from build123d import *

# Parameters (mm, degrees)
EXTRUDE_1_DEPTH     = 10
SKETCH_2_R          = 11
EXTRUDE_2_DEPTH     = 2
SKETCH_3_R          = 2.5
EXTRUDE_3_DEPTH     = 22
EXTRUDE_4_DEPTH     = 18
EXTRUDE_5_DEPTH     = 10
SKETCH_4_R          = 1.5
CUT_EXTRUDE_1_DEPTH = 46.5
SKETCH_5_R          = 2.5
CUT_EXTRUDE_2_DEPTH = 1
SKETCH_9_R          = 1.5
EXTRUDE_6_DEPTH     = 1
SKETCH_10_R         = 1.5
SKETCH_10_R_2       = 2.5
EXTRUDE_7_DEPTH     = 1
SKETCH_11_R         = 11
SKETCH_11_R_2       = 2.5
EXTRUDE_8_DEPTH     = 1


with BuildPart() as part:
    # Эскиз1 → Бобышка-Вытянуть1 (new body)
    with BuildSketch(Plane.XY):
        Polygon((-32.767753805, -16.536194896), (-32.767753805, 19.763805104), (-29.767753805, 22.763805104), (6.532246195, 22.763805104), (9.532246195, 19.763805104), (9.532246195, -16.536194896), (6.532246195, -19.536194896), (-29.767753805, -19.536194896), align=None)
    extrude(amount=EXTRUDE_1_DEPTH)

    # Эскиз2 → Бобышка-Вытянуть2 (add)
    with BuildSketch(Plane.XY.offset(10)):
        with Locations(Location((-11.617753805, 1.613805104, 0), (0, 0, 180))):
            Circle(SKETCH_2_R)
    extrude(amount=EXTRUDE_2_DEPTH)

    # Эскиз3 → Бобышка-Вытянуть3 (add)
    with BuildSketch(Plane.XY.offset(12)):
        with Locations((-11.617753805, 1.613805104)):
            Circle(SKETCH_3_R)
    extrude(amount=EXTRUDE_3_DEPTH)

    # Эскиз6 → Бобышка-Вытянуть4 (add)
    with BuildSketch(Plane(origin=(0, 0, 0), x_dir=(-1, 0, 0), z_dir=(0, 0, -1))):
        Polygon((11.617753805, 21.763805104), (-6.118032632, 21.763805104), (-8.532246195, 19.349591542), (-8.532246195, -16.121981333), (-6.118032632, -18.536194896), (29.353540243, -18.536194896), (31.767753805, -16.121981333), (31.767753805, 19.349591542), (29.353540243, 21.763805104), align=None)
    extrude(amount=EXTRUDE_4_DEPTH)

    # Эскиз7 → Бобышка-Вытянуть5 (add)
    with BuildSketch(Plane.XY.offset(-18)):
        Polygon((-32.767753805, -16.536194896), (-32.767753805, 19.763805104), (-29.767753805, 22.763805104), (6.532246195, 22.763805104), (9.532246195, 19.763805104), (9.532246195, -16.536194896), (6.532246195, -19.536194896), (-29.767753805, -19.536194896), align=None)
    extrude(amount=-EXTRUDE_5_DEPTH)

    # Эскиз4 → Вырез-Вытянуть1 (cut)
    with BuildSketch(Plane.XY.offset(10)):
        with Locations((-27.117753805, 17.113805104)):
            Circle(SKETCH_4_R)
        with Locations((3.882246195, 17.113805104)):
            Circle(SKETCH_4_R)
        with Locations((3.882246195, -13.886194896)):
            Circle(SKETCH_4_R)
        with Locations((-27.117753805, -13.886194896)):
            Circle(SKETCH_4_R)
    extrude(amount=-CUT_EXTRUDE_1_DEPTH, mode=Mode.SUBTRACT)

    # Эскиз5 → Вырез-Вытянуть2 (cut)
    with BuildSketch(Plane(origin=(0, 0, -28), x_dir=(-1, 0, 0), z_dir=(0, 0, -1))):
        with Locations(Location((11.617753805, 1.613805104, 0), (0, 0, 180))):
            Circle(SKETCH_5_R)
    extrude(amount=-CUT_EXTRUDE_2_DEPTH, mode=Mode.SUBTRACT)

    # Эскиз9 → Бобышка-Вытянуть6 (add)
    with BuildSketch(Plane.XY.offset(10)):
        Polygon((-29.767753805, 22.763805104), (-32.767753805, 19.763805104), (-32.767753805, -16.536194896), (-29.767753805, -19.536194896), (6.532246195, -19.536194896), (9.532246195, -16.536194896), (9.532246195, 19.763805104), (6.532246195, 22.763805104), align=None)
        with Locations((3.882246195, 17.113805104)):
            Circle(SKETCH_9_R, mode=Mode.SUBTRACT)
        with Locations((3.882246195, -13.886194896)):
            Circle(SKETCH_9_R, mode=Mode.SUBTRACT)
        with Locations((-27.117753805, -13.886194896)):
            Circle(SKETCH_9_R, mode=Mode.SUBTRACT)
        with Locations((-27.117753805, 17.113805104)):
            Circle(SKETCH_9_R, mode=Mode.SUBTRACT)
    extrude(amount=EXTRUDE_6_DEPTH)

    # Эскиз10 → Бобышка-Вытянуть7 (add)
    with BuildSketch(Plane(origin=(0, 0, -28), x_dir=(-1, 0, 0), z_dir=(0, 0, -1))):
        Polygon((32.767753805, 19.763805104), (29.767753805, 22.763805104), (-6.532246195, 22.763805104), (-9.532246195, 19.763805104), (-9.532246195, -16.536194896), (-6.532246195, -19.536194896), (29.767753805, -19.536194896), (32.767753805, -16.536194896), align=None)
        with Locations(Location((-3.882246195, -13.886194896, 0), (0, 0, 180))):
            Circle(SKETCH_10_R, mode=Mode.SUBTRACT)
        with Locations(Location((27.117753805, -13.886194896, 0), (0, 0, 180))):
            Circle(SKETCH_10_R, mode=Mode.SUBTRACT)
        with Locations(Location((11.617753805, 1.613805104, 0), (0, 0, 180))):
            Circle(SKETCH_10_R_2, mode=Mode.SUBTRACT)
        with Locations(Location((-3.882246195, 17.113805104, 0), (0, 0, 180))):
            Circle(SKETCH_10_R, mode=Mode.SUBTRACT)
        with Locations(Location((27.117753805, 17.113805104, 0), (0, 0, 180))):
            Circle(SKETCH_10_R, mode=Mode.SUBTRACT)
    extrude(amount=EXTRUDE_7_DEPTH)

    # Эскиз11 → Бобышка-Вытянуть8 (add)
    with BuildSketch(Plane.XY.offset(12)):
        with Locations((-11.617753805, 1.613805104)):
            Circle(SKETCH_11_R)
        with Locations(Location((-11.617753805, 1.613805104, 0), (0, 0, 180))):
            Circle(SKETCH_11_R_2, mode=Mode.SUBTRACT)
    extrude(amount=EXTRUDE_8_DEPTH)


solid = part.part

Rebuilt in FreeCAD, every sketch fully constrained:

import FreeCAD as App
import Part
import Sketcher

V = App.Vector
Q = App.Units.Quantity

doc = App.newDocument("Part")
body = doc.addObject("PartDesign::Body", "Body")

# Sketch on XY plane
sketch1 = doc.addObject("Sketcher::SketchObject", "Sketch")
body.addObject(sketch1)
sketch1.AttachmentSupport = (doc.XY_Plane, [""])
sketch1.MapMode = "FlatFace"
sketch1.addGeometry([
    Part.LineSegment(V(-32.8, 19.8, 0), V(-32.8, -16.5, 0)),  # 0
    Part.LineSegment(V(-32.8, -16.5, 0), V(-29.8, -19.5, 0)),  # 1
    Part.LineSegment(V(-29.8, -19.5, 0), V(6.5, -19.5, 0)),  # 2
    Part.LineSegment(V(6.5, -19.5, 0), V(9.5, -16.5, 0)),  # 3
    Part.LineSegment(V(9.5, -16.5, 0), V(9.5, 19.8, 0)),  # 4
    Part.LineSegment(V(9.5, 19.8, 0), V(6.5, 22.8, 0)),  # 5
    Part.LineSegment(V(6.5, 22.8, 0), V(-29.8, 22.8, 0)),  # 6
    Part.LineSegment(V(-29.8, 22.8, 0), V(-32.8, 19.8, 0)),  # 7
], False)
sketch1.addConstraint([
    Sketcher.Constraint("Coincident", 0, 2, 1, 1),
    Sketcher.Constraint("Coincident", 1, 2, 2, 1),
    Sketcher.Constraint("Coincident", 2, 2, 3, 1),
    Sketcher.Constraint("Coincident", 3, 2, 4, 1),
    Sketcher.Constraint("Coincident", 4, 2, 5, 1),
    Sketcher.Constraint("Coincident", 5, 2, 6, 1),
    Sketcher.Constraint("Coincident", 6, 2, 7, 1),
    Sketcher.Constraint("Coincident", 7, 2, 0, 1),
    Sketcher.Constraint("Vertical", 0),
    Sketcher.Constraint("Horizontal", 2),
    Sketcher.Constraint("Vertical", 4),
    Sketcher.Constraint("Horizontal", 6),
    Sketcher.Constraint("Perpendicular", 1, 3),
    Sketcher.Constraint("Perpendicular", 3, 5),
    Sketcher.Constraint("Perpendicular", 5, 7),
    Sketcher.Constraint("Horizontal", 0, 2, 3, 2),
    Sketcher.Constraint("Horizontal", 4, 2, 7, 2),
    Sketcher.Constraint("Vertical", 2, 2, 5, 2),
    Sketcher.Constraint("Vertical", 1, 2, 6, 2),
    Sketcher.Constraint("Equal", 6, 0),
    Sketcher.Constraint("DistanceX", 2, 1, 2, 2, Q("36.3 mm")),
    Sketcher.Constraint("DistanceX", 0, 2, 1, 2, Q("3 mm")),
    Sketcher.Constraint("DistanceX", 0, 2, -1, 1, Q("32.767754 mm")),
    Sketcher.Constraint("DistanceY", 0, 2, -1, 1, Q("16.536195 mm")),
])
pad1 = doc.addObject("PartDesign::Pad", "Pad")
body.addObject(pad1)
pad1.Profile = sketch1
pad1.Length = 10

# Sketch on XY plane
sketch2 = doc.addObject("Sketcher::SketchObject", "Sketch001")
body.addObject(sketch2)
sketch2.AttachmentSupport = (doc.XY_Plane, [""])
sketch2.MapMode = "FlatFace"
sketch2.AttachmentOffset = App.Placement(V(0, 0, 10), App.Rotation())
sketch2.addGeometry(Part.Circle(V(-12, 2, 0), V(0, 0, 1), 11), False)
sketch2.addConstraint([
    Sketcher.Constraint("Diameter", 0, Q("22 mm")),
    Sketcher.Constraint("DistanceX", 0, 3, -1, 1, Q("11.617754 mm")),
    Sketcher.Constraint("DistanceY", -1, 1, 0, 3, Q("1.613805 mm")),
])
pad2 = doc.addObject("PartDesign::Pad", "Pad001")
body.addObject(pad2)
pad2.Profile = sketch2
pad2.Length = 2

# Sketch on XY plane
sketch3 = doc.addObject("Sketcher::SketchObject", "Sketch002")
body.addObject(sketch3)
sketch3.AttachmentSupport = (doc.XY_Plane, [""])
sketch3.MapMode = "FlatFace"
sketch3.AttachmentOffset = App.Placement(V(0, 0, 12), App.Rotation())
sketch3.addGeometry(Part.Circle(V(-11.6, 1.6, 0), V(0, 0, 1), 2.5), False)
sketch3.addConstraint([
    Sketcher.Constraint("Diameter", 0, Q("5 mm")),
    Sketcher.Constraint("DistanceX", 0, 3, -1, 1, Q("11.617754 mm")),
    Sketcher.Constraint("DistanceY", -1, 1, 0, 3, Q("1.613805 mm")),
])
pad3 = doc.addObject("PartDesign::Pad", "Pad002")
body.addObject(pad3)
pad3.Profile = sketch3
pad3.Length = 22

# Sketch on XY plane
sketch4 = doc.addObject("Sketcher::SketchObject", "Sketch003")
body.addObject(sketch4)
sketch4.AttachmentSupport = (doc.XY_Plane, [""])
sketch4.MapMode = "FlatFace"
sketch4.addGeometry([
    Part.LineSegment(V(6.1, 21.8, 0), V(8.5, 19.3, 0)),  # 0
    Part.LineSegment(V(8.5, 19.3, 0), V(8.5, -16.1, 0)),  # 1
    Part.LineSegment(V(8.5, -16.1, 0), V(6.1, -18.5, 0)),  # 2
    Part.LineSegment(V(6.1, -18.5, 0), V(-29.4, -18.5, 0)),  # 3
    Part.LineSegment(V(-29.4, -18.5, 0), V(-31.8, -16.1, 0)),  # 4
    Part.LineSegment(V(-31.8, -16.1, 0), V(-31.8, 19.3, 0)),  # 5
    Part.LineSegment(V(-31.8, 19.3, 0), V(-29.4, 21.8, 0)),  # 6
    Part.LineSegment(V(-29.4, 21.8, 0), V(6.1, 21.8, 0)),  # 7
], False)
sketch4.addConstraint([
    Sketcher.Constraint("Coincident", 0, 2, 1, 1),
    Sketcher.Constraint("Coincident", 1, 2, 2, 1),
    Sketcher.Constraint("Coincident", 2, 2, 3, 1),
    Sketcher.Constraint("Coincident", 3, 2, 4, 1),
    Sketcher.Constraint("Coincident", 4, 2, 5, 1),
    Sketcher.Constraint("Coincident", 5, 2, 6, 1),
    Sketcher.Constraint("Coincident", 6, 2, 7, 1),
    Sketcher.Constraint("Coincident", 7, 2, 0, 1),
    Sketcher.Constraint("Vertical", 1),
    Sketcher.Constraint("Horizontal", 3),
    Sketcher.Constraint("Vertical", 5),
    Sketcher.Constraint("Horizontal", 7),
    Sketcher.Constraint("Perpendicular", 0, 2),
    Sketcher.Constraint("Perpendicular", 2, 4),
    Sketcher.Constraint("Perpendicular", 4, 6),
    Sketcher.Constraint("Horizontal", 1, 2, 4, 2),
    Sketcher.Constraint("Horizontal", 0, 2, 5, 2),
    Sketcher.Constraint("Vertical", 3, 2, 6, 2),
    Sketcher.Constraint("Vertical", 2, 2, 7, 2),
    Sketcher.Constraint("Equal", 7, 1),
    Sketcher.Constraint("DistanceX", 4, 2, 1, 2, Q("40.3 mm")),
    Sketcher.Constraint("DistanceX", 3, 2, 3, 1, Q("35.471573 mm")),
    Sketcher.Constraint("DistanceY", -1, 1, 0, 2, Q("19.349592 mm")),
    Sketcher.Constraint("DistanceX", 3, 2, -1, 1, Q("29.35354 mm")),
])
pad4 = doc.addObject("PartDesign::Pad", "Pad003")
body.addObject(pad4)
pad4.Profile = sketch4
pad4.Length = 18
pad4.Reversed = True

# Sketch on XY plane
sketch5 = doc.addObject("Sketcher::SketchObject", "Sketch004")
body.addObject(sketch5)
sketch5.AttachmentSupport = (doc.XY_Plane, [""])
sketch5.MapMode = "FlatFace"
sketch5.AttachmentOffset = App.Placement(V(0, 0, -18), App.Rotation())
sketch5.addGeometry([
    Part.LineSegment(V(-32.8, 19.8, 0), V(-32.8, -16.5, 0)),  # 0
    Part.LineSegment(V(-32.8, -16.5, 0), V(-29.8, -19.5, 0)),  # 1
    Part.LineSegment(V(-29.8, -19.5, 0), V(6.5, -19.5, 0)),  # 2
    Part.LineSegment(V(6.5, -19.5, 0), V(9.5, -16.5, 0)),  # 3
    Part.LineSegment(V(9.5, -16.5, 0), V(9.5, 19.8, 0)),  # 4
    Part.LineSegment(V(9.5, 19.8, 0), V(6.5, 22.8, 0)),  # 5
    Part.LineSegment(V(6.5, 22.8, 0), V(-29.8, 22.8, 0)),  # 6
    Part.LineSegment(V(-29.8, 22.8, 0), V(-32.8, 19.8, 0)),  # 7
], False)
sketch5.addConstraint([
    Sketcher.Constraint("Coincident", 0, 2, 1, 1),
    Sketcher.Constraint("Coincident", 1, 2, 2, 1),
    Sketcher.Constraint("Coincident", 2, 2, 3, 1),
    Sketcher.Constraint("Coincident", 3, 2, 4, 1),
    Sketcher.Constraint("Coincident", 4, 2, 5, 1),
    Sketcher.Constraint("Coincident", 5, 2, 6, 1),
    Sketcher.Constraint("Coincident", 6, 2, 7, 1),
    Sketcher.Constraint("Coincident", 7, 2, 0, 1),
    Sketcher.Constraint("Vertical", 0),
    Sketcher.Constraint("Horizontal", 2),
    Sketcher.Constraint("Vertical", 4),
    Sketcher.Constraint("Horizontal", 6),
    Sketcher.Constraint("Perpendicular", 1, 3),
    Sketcher.Constraint("Perpendicular", 3, 5),
    Sketcher.Constraint("Perpendicular", 5, 7),
    Sketcher.Constraint("Horizontal", 0, 2, 3, 2),
    Sketcher.Constraint("Horizontal", 4, 2, 7, 2),
    Sketcher.Constraint("Vertical", 2, 2, 5, 2),
    Sketcher.Constraint("Vertical", 1, 2, 6, 2),
    Sketcher.Constraint("Equal", 6, 0),
    Sketcher.Constraint("DistanceX", 2, 1, 2, 2, Q("36.3 mm")),
    Sketcher.Constraint("DistanceX", 0, 2, 1, 2, Q("3 mm")),
    Sketcher.Constraint("DistanceX", 0, 2, -1, 1, Q("32.767754 mm")),
    Sketcher.Constraint("DistanceY", 0, 2, -1, 1, Q("16.536195 mm")),
])
pad5 = doc.addObject("PartDesign::Pad", "Pad004")
body.addObject(pad5)
pad5.Profile = sketch5
pad5.Length = 10
pad5.Reversed = True

# Sketch on XY plane
sketch6 = doc.addObject("Sketcher::SketchObject", "Sketch005")
body.addObject(sketch6)
sketch6.AttachmentSupport = (doc.XY_Plane, [""])
sketch6.MapMode = "FlatFace"
sketch6.AttachmentOffset = App.Placement(V(0, 0, 10), App.Rotation())
sketch6.addGeometry([
    Part.Circle(V(-27.1, 17.1, 0), V(0, 0, 1), 1.5),
    Part.Circle(V(3.9, 17.1, 0), V(0, 0, 1), 1.5),
    Part.Circle(V(3.9, -13.9, 0), V(0, 0, 1), 1.5),
    Part.Circle(V(-27.1, -13.9, 0), V(0, 0, 1), 1.5),
], False)
sketch6.addConstraint([
    Sketcher.Constraint("Equal", 0, 1),
    Sketcher.Constraint("Equal", 1, 2),
    Sketcher.Constraint("Equal", 2, 3),
    Sketcher.Constraint("Horizontal", 0, 3, 1, 3),
    Sketcher.Constraint("Horizontal", 2, 3, 3, 3),
    Sketcher.Constraint("Vertical", 1, 3, 2, 3),
    Sketcher.Constraint("Vertical", 0, 3, 3, 3),
    Sketcher.Constraint("Diameter", 0, Q("3 mm")),
    Sketcher.Constraint("DistanceX", 0, 3, 1, 3, Q("31 mm")),
    Sketcher.Constraint("DistanceY", 2, 3, 1, 3, Q("31 mm")),
    Sketcher.Constraint("DistanceX", 0, 3, -1, 1, Q("27.117754 mm")),
    Sketcher.Constraint("DistanceY", -1, 1, 0, 3, Q("17.113805 mm")),
])
pocket1 = doc.addObject("PartDesign::Pocket", "Pocket")
body.addObject(pocket1)
pocket1.Profile = sketch6
pocket1.Length = 46.5

# Sketch on XY plane
sketch7 = doc.addObject("Sketcher::SketchObject", "Sketch006")
body.addObject(sketch7)
sketch7.AttachmentSupport = (doc.XY_Plane, [""])
sketch7.MapMode = "FlatFace"
sketch7.AttachmentOffset = App.Placement(V(0, 0, -28), App.Rotation())
sketch7.addGeometry(Part.Circle(V(-11.6, 1.6, 0), V(0, 0, 1), 2.5), False)
sketch7.addConstraint([
    Sketcher.Constraint("Diameter", 0, Q("5 mm")),
    Sketcher.Constraint("DistanceX", 0, 3, -1, 1, Q("11.617754 mm")),
    Sketcher.Constraint("DistanceY", -1, 1, 0, 3, Q("1.613805 mm")),
])
pocket2 = doc.addObject("PartDesign::Pocket", "Pocket001")
body.addObject(pocket2)
pocket2.Profile = sketch7
pocket2.Length = 1
pocket2.Reversed = True

# Sketch on XY plane
sketch8 = doc.addObject("Sketcher::SketchObject", "Sketch007")
body.addObject(sketch8)
sketch8.AttachmentSupport = (doc.XY_Plane, [""])
sketch8.MapMode = "FlatFace"
sketch8.AttachmentOffset = App.Placement(V(0, 0, 10), App.Rotation())
sketch8.addGeometry([
    Part.LineSegment(V(-29.8, 22.8, 0), V(-32.8, 19.8, 0)),  # 0
    Part.LineSegment(V(-32.8, 19.8, 0), V(-32.8, -16.5, 0)),  # 1
    Part.LineSegment(V(-32.8, -16.5, 0), V(-29.8, -19.5, 0)),  # 2
    Part.LineSegment(V(-29.8, -19.5, 0), V(6.5, -19.5, 0)),  # 3
    Part.LineSegment(V(6.5, -19.5, 0), V(9.5, -16.5, 0)),  # 4
    Part.LineSegment(V(9.5, -16.5, 0), V(9.5, 19.8, 0)),  # 5
    Part.LineSegment(V(9.5, 19.8, 0), V(6.5, 22.8, 0)),  # 6
    Part.LineSegment(V(6.5, 22.8, 0), V(-29.8, 22.8, 0)),  # 7
    Part.Circle(V(-27.1, -13.9, 0), V(0, 0, 1), 1.5),  # 8
    Part.Circle(V(3.9, -13.9, 0), V(0, 0, 1), 1.5),  # 9
    Part.Circle(V(-27.1, 17.1, 0), V(0, 0, 1), 1.5),  # 10
    Part.Circle(V(3.9, 17.1, 0), V(0, 0, 1), 1.5),  # 11
], False)
sketch8.addConstraint([
    Sketcher.Constraint("Coincident", 0, 2, 1, 1),
    Sketcher.Constraint("Coincident", 1, 2, 2, 1),
    Sketcher.Constraint("Coincident", 2, 2, 3, 1),
    Sketcher.Constraint("Coincident", 3, 2, 4, 1),
    Sketcher.Constraint("Coincident", 4, 2, 5, 1),
    Sketcher.Constraint("Coincident", 5, 2, 6, 1),
    Sketcher.Constraint("Coincident", 6, 2, 7, 1),
    Sketcher.Constraint("Coincident", 7, 2, 0, 1),
    Sketcher.Constraint("Vertical", 1),
    Sketcher.Constraint("Horizontal", 3),
    Sketcher.Constraint("Vertical", 5),
    Sketcher.Constraint("Horizontal", 7),
    Sketcher.Constraint("Equal", 8, 9),
    Sketcher.Constraint("Equal", 9, 10),
    Sketcher.Constraint("Equal", 10, 11),
    Sketcher.Constraint("Perpendicular", 0, 2),
    Sketcher.Constraint("Perpendicular", 2, 4),
    Sketcher.Constraint("Perpendicular", 4, 6),
    Sketcher.Constraint("Horizontal", 8, 3, 9, 3),
    Sketcher.Constraint("Horizontal", 10, 3, 11, 3),
    Sketcher.Constraint("Horizontal", 1, 2, 4, 2),
    Sketcher.Constraint("Horizontal", 0, 2, 5, 2),
    Sketcher.Constraint("Vertical", 8, 3, 10, 3),
    Sketcher.Constraint("Vertical", 9, 3, 11, 3),
    Sketcher.Constraint("Vertical", 3, 2, 6, 2),
    Sketcher.Constraint("Vertical", 2, 2, 7, 2),
    Sketcher.Constraint("Equal", 7, 1),
    Sketcher.Constraint("Diameter", 8, Q("3 mm")),
    Sketcher.Constraint("DistanceX", 3, 1, 3, 2, Q("36.3 mm")),
    Sketcher.Constraint("DistanceX", 8, 3, 9, 3, Q("31 mm")),
    Sketcher.Constraint("DistanceY", 8, 3, 10, 3, Q("31 mm")),
    Sketcher.Constraint("DistanceX", 1, 2, 2, 2, Q("3 mm")),
    Sketcher.Constraint("DistanceX", 0, 2, 10, 3, Q("5.65 mm")),
    Sketcher.Constraint("DistanceY", 10, 3, 0, 2, Q("2.65 mm")),
    Sketcher.Constraint("DistanceX", 8, 3, -1, 1, Q("27.117754 mm")),
    Sketcher.Constraint("DistanceY", 8, 3, -1, 1, Q("13.886195 mm")),
])
pad6 = doc.addObject("PartDesign::Pad", "Pad005")
body.addObject(pad6)
pad6.Profile = sketch8
pad6.Length = 1

# Sketch on XY plane
sketch9 = doc.addObject("Sketcher::SketchObject", "Sketch008")
body.addObject(sketch9)
sketch9.AttachmentSupport = (doc.XY_Plane, [""])
sketch9.MapMode = "FlatFace"
sketch9.AttachmentOffset = App.Placement(V(0, 0, -28), App.Rotation())
sketch9.addGeometry([
    Part.LineSegment(V(-32.8, 19.8, 0), V(-29.8, 22.8, 0)),  # 0
    Part.LineSegment(V(-29.8, 22.8, 0), V(6.5, 22.8, 0)),  # 1
    Part.LineSegment(V(6.5, 22.8, 0), V(9.5, 19.8, 0)),  # 2
    Part.LineSegment(V(9.5, 19.8, 0), V(9.5, -16.5, 0)),  # 3
    Part.LineSegment(V(9.5, -16.5, 0), V(6.5, -19.5, 0)),  # 4
    Part.LineSegment(V(6.5, -19.5, 0), V(-29.8, -19.5, 0)),  # 5
    Part.LineSegment(V(-29.8, -19.5, 0), V(-32.8, -16.5, 0)),  # 6
    Part.LineSegment(V(-32.8, -16.5, 0), V(-32.8, 19.8, 0)),  # 7
    Part.Circle(V(3.9, -13.9, 0), V(0, 0, 1), 1.5),  # 8
    Part.Circle(V(-27.1, -13.9, 0), V(0, 0, 1), 1.5),  # 9
    Part.Circle(V(3.9, 17.1, 0), V(0, 0, 1), 1.5),  # 10
    Part.Circle(V(-11.6, 1.6, 0), V(0, 0, 1), 2.5),  # 11
    Part.Circle(V(-27.1, 17.1, 0), V(0, 0, 1), 1.5),  # 12
], False)
sketch9.addConstraint([
    Sketcher.Constraint("Coincident", 0, 2, 1, 1),
    Sketcher.Constraint("Coincident", 1, 2, 2, 1),
    Sketcher.Constraint("Coincident", 2, 2, 3, 1),
    Sketcher.Constraint("Coincident", 3, 2, 4, 1),
    Sketcher.Constraint("Coincident", 4, 2, 5, 1),
    Sketcher.Constraint("Coincident", 5, 2, 6, 1),
    Sketcher.Constraint("Coincident", 6, 2, 7, 1),
    Sketcher.Constraint("Coincident", 7, 2, 0, 1),
    Sketcher.Constraint("Horizontal", 1),
    Sketcher.Constraint("Vertical", 3),
    Sketcher.Constraint("Horizontal", 5),
    Sketcher.Constraint("Vertical", 7),
    Sketcher.Constraint("Equal", 8, 9),
    Sketcher.Constraint("Equal", 9, 10),
    Sketcher.Constraint("Equal", 10, 12),
    Sketcher.Constraint("Perpendicular", 0, 2),
    Sketcher.Constraint("Perpendicular", 2, 4),
    Sketcher.Constraint("Perpendicular", 4, 6),
    Sketcher.Constraint("Horizontal", 8, 3, 9, 3),
    Sketcher.Constraint("Horizontal", 10, 3, 12, 3),
    Sketcher.Constraint("Horizontal", 3, 2, 6, 2),
    Sketcher.Constraint("Horizontal", 2, 2, 7, 2),
    Sketcher.Constraint("Vertical", 8, 3, 10, 3),
    Sketcher.Constraint("Vertical", 9, 3, 12, 3),
    Sketcher.Constraint("Vertical", 1, 2, 4, 2),
    Sketcher.Constraint("Vertical", 0, 2, 5, 2),
    Sketcher.Constraint("Equal", 5, 3),
    Sketcher.Constraint("Diameter", 8, Q("3 mm")),
    Sketcher.Constraint("Diameter", 11, Q("5 mm")),
    Sketcher.Constraint("DistanceX", 1, 1, 1, 2, Q("36.3 mm")),
    Sketcher.Constraint("DistanceX", 9, 3, 8, 3, Q("31 mm")),
    Sketcher.Constraint("DistanceY", 8, 3, 10, 3, Q("31 mm")),
    Sketcher.Constraint("DistanceX", 1, 2, 2, 2, Q("3 mm")),
    Sketcher.Constraint("DistanceX", 11, 3, 8, 3, Q("15.5 mm")),
    Sketcher.Constraint("DistanceY", 8, 3, 11, 3, Q("15.5 mm")),
    Sketcher.Constraint("DistanceX", 0, 2, 12, 3, Q("2.65 mm")),
    Sketcher.Constraint("DistanceY", 12, 3, 0, 2, Q("5.65 mm")),
    Sketcher.Constraint("DistanceX", -1, 1, 8, 3, Q("3.882246 mm")),
    Sketcher.Constraint("DistanceY", 8, 3, -1, 1, Q("13.886195 mm")),
])
pad7 = doc.addObject("PartDesign::Pad", "Pad006")
body.addObject(pad7)
pad7.Profile = sketch9
pad7.Length = 1
pad7.Reversed = True

# Sketch on XY plane
sketch10 = doc.addObject("Sketcher::SketchObject", "Sketch009")
body.addObject(sketch10)
sketch10.AttachmentSupport = (doc.XY_Plane, [""])
sketch10.MapMode = "FlatFace"
sketch10.AttachmentOffset = App.Placement(V(0, 0, 12), App.Rotation())
sketch10.addGeometry([
    Part.Circle(V(-11.6, 1.6, 0), V(0, 0, 1), 11),
    Part.Circle(V(-11.6, 1.6, 0), V(0, 0, 1), 2.5),
], False)
sketch10.addConstraint([
    Sketcher.Constraint("Coincident", 1, 3, 0, 3),
    Sketcher.Constraint("Diameter", 0, Q("22 mm")),
    Sketcher.Constraint("Diameter", 1, Q("5 mm")),
    Sketcher.Constraint("DistanceX", 0, 3, -1, 1, Q("11.617754 mm")),
    Sketcher.Constraint("DistanceY", -1, 1, 0, 3, Q("1.613805 mm")),
])
pad8 = doc.addObject("PartDesign::Pad", "Pad007")
body.addObject(pad8)
pad8.Profile = sketch10
pad8.Length = 1

doc.recompute()
